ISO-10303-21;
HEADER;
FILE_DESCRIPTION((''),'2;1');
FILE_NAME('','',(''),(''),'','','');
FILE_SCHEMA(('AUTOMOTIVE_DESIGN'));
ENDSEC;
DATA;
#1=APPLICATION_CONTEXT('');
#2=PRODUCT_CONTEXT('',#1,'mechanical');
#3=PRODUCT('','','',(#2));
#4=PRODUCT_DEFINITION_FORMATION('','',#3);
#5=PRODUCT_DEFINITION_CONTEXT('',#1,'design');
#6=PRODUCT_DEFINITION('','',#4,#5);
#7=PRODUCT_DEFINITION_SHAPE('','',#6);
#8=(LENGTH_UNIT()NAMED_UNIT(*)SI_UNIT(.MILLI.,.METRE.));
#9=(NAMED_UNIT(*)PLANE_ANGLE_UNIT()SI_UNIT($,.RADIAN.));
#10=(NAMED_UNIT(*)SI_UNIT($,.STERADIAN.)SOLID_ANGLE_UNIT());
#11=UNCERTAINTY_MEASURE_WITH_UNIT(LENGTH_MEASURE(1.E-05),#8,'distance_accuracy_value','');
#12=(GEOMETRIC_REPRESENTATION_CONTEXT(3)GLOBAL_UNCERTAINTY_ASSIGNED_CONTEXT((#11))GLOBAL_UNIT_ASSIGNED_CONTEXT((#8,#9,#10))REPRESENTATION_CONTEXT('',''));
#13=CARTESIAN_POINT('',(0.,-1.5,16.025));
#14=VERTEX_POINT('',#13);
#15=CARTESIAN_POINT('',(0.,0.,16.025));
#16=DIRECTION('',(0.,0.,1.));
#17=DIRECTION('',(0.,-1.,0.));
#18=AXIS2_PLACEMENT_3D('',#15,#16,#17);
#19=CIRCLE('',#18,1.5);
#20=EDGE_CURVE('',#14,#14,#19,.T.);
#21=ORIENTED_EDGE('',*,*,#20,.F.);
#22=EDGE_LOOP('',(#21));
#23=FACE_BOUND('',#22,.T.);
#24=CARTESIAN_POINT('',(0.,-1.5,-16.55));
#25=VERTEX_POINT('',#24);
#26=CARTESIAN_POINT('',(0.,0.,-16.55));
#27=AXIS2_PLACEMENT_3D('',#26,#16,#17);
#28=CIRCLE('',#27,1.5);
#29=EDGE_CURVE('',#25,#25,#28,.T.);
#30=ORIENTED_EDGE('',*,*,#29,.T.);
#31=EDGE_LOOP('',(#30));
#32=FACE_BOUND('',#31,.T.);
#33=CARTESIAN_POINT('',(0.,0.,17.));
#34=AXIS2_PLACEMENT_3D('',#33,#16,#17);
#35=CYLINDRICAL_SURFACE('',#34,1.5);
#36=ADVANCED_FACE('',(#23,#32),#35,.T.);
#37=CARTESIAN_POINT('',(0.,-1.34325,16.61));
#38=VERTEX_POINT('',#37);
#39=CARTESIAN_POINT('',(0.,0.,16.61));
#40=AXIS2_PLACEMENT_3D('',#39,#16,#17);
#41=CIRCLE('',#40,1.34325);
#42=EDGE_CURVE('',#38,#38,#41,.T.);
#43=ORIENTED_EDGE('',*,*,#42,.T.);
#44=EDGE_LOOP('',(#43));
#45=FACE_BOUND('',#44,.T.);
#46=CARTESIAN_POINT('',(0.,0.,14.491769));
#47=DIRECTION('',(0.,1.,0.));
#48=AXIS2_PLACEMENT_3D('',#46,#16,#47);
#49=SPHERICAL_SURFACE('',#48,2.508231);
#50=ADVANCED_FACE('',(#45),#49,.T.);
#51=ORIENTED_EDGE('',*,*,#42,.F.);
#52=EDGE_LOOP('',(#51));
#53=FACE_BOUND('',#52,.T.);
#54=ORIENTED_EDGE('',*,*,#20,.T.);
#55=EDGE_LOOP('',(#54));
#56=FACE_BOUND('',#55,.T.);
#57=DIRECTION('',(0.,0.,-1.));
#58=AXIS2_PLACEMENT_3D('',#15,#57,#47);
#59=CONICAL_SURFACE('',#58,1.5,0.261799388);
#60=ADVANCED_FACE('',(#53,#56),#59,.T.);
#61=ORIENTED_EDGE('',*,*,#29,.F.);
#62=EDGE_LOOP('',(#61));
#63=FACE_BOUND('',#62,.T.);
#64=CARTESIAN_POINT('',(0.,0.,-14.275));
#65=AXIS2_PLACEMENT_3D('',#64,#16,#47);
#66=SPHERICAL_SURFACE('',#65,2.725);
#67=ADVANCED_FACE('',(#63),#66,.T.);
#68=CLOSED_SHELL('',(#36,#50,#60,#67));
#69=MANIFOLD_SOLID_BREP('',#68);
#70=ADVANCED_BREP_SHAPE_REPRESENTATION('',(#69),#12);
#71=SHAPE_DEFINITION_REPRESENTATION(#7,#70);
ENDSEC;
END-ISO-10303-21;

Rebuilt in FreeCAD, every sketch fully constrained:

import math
import FreeCAD as App
import Part
import Sketcher

V = App.Vector
Q = App.Units.Quantity

doc = App.newDocument("Part")
body = doc.addObject("PartDesign::Body", "Body")

sketch1 = body.newObject("Sketcher::SketchObject", "Sketch")
sketch1.AttachmentSupport = (doc.getObject("YZ_Plane"), [""])
sketch1.MapMode = "FlatFace"
sketch1.addGeometry([
    Part.LineSegment(V(0, 17, 0), V(0, -17, 0)),
    Part.ArcOfCircle(Part.Circle(V(0, -14.275, 0), V(0, 0, 1), 2.725), math.radians(-90), math.radians(-56.601512)),
    Part.LineSegment(V(1.5, -16.55, 0), V(1.5, 16.025, 0)),
    Part.LineSegment(V(1.5, 16.025, 0), V(1.34325, 16.61, 0)),
    Part.ArcOfCircle(Part.Circle(V(0, 14.491769, 0), V(0, 0, 1), 2.508231), math.radians(57.619678), math.radians(90)),
], False)
sketch1.addConstraint([
    Sketcher.Constraint("Coincident", 0, 2, 1, 1),
    Sketcher.Constraint("Coincident", 1, 2, 2, 1),
    Sketcher.Constraint("Coincident", 2, 2, 3, 1),
    Sketcher.Constraint("Coincident", 3, 2, 4, 1),
    Sketcher.Constraint("Coincident", 4, 2, 0, 1),
    Sketcher.Constraint("Vertical", 0),
    Sketcher.Constraint("Vertical", 2),
    Sketcher.Constraint("Symmetric", 0, 2, 4, 2, -1, 1),
    Sketcher.Constraint("PointOnObject", 1, 3, -2),
    Sketcher.Constraint("PointOnObject", 4, 3, -2),
    Sketcher.Constraint("DistanceY", 0, 2, 0, 1, Q("34 mm")),
    Sketcher.Constraint("Angle", 3, Q("105 deg")),
    Sketcher.Constraint("Radius", 1, Q("2.725 mm")),
    Sketcher.Constraint("DistanceX", -1, 1, 1, 2, Q("1.5 mm")),
    Sketcher.Constraint("DistanceY", 1, 3, 2, 2, Q("30.3 mm")),
    Sketcher.Constraint("DistanceY", -1, 1, 3, 2, Q("16.61 mm")),
])
revolution = body.newObject("PartDesign::Revolution", "Revolution")
revolution.Profile = sketch1
revolution.ReferenceAxis = (sketch1, ["V_Axis"])
revolution.Angle = 360

doc.recompute()
